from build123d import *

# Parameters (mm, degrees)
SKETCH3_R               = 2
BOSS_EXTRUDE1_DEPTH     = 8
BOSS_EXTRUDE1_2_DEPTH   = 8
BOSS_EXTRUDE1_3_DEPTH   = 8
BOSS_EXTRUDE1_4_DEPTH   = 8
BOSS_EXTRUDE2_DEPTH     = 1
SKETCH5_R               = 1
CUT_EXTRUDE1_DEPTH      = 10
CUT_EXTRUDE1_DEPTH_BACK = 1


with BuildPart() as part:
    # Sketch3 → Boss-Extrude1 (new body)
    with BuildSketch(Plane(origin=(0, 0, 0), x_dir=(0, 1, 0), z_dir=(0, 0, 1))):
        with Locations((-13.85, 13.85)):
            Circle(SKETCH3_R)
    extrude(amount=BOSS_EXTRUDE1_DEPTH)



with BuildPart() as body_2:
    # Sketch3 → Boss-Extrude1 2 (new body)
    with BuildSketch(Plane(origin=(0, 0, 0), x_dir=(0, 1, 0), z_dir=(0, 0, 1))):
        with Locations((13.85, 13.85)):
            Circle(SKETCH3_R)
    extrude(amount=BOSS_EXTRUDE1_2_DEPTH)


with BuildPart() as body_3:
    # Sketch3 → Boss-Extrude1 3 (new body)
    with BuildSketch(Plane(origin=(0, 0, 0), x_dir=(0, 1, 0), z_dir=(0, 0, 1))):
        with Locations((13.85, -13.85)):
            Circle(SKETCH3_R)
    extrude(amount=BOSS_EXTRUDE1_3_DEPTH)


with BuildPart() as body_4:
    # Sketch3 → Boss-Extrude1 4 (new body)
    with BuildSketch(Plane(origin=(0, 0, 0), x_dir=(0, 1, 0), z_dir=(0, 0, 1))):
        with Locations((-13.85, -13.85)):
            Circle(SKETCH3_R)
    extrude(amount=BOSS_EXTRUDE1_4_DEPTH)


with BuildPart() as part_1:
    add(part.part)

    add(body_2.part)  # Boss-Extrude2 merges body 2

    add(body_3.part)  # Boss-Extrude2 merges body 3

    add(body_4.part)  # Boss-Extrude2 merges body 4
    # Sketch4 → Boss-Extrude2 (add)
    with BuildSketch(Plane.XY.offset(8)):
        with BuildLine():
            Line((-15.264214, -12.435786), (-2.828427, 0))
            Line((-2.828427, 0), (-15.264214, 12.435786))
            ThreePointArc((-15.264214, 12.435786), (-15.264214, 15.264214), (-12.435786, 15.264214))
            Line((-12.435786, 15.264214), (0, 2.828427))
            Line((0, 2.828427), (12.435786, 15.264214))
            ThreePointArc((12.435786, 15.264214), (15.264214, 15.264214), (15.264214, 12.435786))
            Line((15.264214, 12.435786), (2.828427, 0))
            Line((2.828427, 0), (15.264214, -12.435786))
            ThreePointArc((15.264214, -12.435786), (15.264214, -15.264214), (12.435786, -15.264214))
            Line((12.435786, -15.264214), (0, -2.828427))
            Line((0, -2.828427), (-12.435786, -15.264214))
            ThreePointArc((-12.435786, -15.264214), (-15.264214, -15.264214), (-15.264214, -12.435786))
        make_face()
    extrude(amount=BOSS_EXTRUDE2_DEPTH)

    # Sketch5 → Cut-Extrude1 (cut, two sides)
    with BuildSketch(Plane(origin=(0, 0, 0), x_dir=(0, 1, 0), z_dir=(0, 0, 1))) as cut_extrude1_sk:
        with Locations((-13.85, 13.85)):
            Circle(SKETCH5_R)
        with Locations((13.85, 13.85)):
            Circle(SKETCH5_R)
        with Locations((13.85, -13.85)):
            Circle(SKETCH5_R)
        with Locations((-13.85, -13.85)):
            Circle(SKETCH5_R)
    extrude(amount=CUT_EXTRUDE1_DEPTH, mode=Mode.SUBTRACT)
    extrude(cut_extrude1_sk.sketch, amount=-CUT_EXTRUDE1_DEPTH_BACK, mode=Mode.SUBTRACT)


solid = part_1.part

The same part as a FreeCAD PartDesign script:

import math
import FreeCAD as App
import Part
import Sketcher

V = App.Vector
Q = App.Units.Quantity

doc = App.newDocument("Part")
body = doc.addObject("PartDesign::Body", "Body")

sketch1 = body.newObject("Sketcher::SketchObject", "Sketch")
sketch1.AttachmentSupport = (doc.getObject("XY_Plane"), [""])
sketch1.MapMode = "FlatFace"
sketch1.addGeometry(Part.Circle(V(-13.8, -13.8, 0), V(0, 0, 1), 2), False)
sketch1.addConstraint(Sketcher.Constraint("Diameter", 0, Q("4 mm")))
sketch1.addConstraint(Sketcher.Constraint("DistanceX", 0, 3, -1, 1, Q("13.85 mm")))
sketch1.addConstraint(Sketcher.Constraint("DistanceY", 0, 3, -1, 1, Q("13.85 mm")))
pad1 = body.newObject("PartDesign::Pad", "Pad")
pad1.Profile = sketch1
pad1.Length = 8
body2 = doc.addObject("PartDesign::Body", "Body001")

sketch2 = body2.newObject("Sketcher::SketchObject", "Sketch001")
sketch2.AttachmentSupport = (doc.getObject("XY_Plane001"), [""])
sketch2.MapMode = "FlatFace"
sketch2.addGeometry(Part.Circle(V(-13.8, 13.8, 0), V(0, 0, 1), 2), False)
sketch2.addConstraint(Sketcher.Constraint("Diameter", 0, Q("4 mm")))
sketch2.addConstraint(Sketcher.Constraint("DistanceX", 0, 3, -1, 1, Q("13.85 mm")))
sketch2.addConstraint(Sketcher.Constraint("DistanceY", -1, 1, 0, 3, Q("13.85 mm")))
pad2 = body2.newObject("PartDesign::Pad", "Pad001")
pad2.Profile = sketch2
pad2.Length = 8
body3 = doc.addObject("PartDesign::Body", "Body002")

sketch3 = body3.newObject("Sketcher::SketchObject", "Sketch002")
sketch3.AttachmentSupport = (doc.getObject("XY_Plane002"), [""])
sketch3.MapMode = "FlatFace"
sketch3.addGeometry(Part.Circle(V(13.8, 13.8, 0), V(0, 0, 1), 2), False)
sketch3.addConstraint(Sketcher.Constraint("Diameter", 0, Q("4 mm")))
sketch3.addConstraint(Sketcher.Constraint("DistanceX", -1, 1, 0, 3, Q("13.85 mm")))
sketch3.addConstraint(Sketcher.Constraint("DistanceY", -1, 1, 0, 3, Q("13.85 mm")))
pad3 = body3.newObject("PartDesign::Pad", "Pad002")
pad3.Profile = sketch3
pad3.Length = 8
body4 = doc.addObject("PartDesign::Body", "Body003")

sketch4 = body4.newObject("Sketcher::SketchObject", "Sketch003")
sketch4.AttachmentSupport = (doc.getObject("XY_Plane003"), [""])
sketch4.MapMode = "FlatFace"
sketch4.addGeometry(Part.Circle(V(13.8, -13.8, 0), V(0, 0, 1), 2), False)
sketch4.addConstraint(Sketcher.Constraint("Diameter", 0, Q("4 mm")))
sketch4.addConstraint(Sketcher.Constraint("DistanceX", -1, 1, 0, 3, Q("13.85 mm")))
sketch4.addConstraint(Sketcher.Constraint("DistanceY", 0, 3, -1, 1, Q("13.85 mm")))
pad4 = body4.newObject("PartDesign::Pad", "Pad003")
pad4.Profile = sketch4
pad4.Length = 8
body.AllowCompound = True
doc.recompute()

boolean = body.newObject("PartDesign::Boolean", "Boolean")
boolean.Type = "Fuse"
boolean.addObjects([body2])
doc.recompute()

boolean2 = body.newObject("PartDesign::Boolean", "Boolean001")
boolean2.Type = "Fuse"
boolean2.addObjects([body3])
doc.recompute()

boolean3 = body.newObject("PartDesign::Boolean", "Boolean002")
boolean3.Type = "Fuse"
boolean3.addObjects([body4])

sketch5 = body.newObject("Sketcher::SketchObject", "Sketch004")
sketch5.AttachmentSupport = (doc.getObject("XY_Plane"), [""])
sketch5.MapMode = "FlatFace"
sketch5.AttachmentOffset = App.Placement(V(0, 0, 8), App.Rotation())
sketch5.addGeometry(Part.LineSegment(V(-2.8, 0, 0), V(-15.3, -12.4, 0)), False)
sketch5.addGeometry(Part.ArcOfCircle(Part.Circle(V(-13.8, -13.8, 0), V(0, 0, 1), 2), math.radians(135), math.radians(315)), False)
sketch5.addGeometry(Part.LineSegment(V(-12.4, -15.3, 0), V(0, -2.8, 0)), False)
sketch5.addGeometry(Part.LineSegment(V(0, -2.8, 0), V(12.4, -15.3, 0)), False)
sketch5.addGeometry(Part.ArcOfCircle(Part.Circle(V(13.8, -13.8, 0), V(0, 0, 1), 2), math.radians(-135), math.radians(45)), False)
sketch5.addGeometry(Part.LineSegment(V(15.3, -12.4, 0), V(2.8, 0, 0)), False)
sketch5.addGeometry(Part.LineSegment(V(2.8, 0, 0), V(15.3, 12.4, 0)), False)
sketch5.addGeometry(Part.ArcOfCircle(Part.Circle(V(13.8, 13.8, 0), V(0, 0, 1), 2), math.radians(-45), math.radians(135)), False)
sketch5.addGeometry(Part.LineSegment(V(12.4, 15.3, 0), V(0, 2.8, 0)), False)
sketch5.addGeometry(Part.LineSegment(V(0, 2.8, 0), V(-12.4, 15.3, 0)), False)
sketch5.addGeometry(Part.ArcOfCircle(Part.Circle(V(-13.8, 13.8, 0), V(0, 0, 1), 2), math.radians(45), math.radians(225)), False)
sketch5.addGeometry(Part.LineSegment(V(-15.3, 12.4, 0), V(-2.8, 0, 0)), False)
sketch5.addConstraint(Sketcher.Constraint("Tangent", 0, 2, 1, 1))
sketch5.addConstraint(Sketcher.Constraint("Tangent", 1, 2, 2, 1))
sketch5.addConstraint(Sketcher.Constraint("Coincident", 2, 2, 3, 1))
sketch5.addConstraint(Sketcher.Constraint("Tangent", 3, 2, 4, 1))
sketch5.addConstraint(Sketcher.Constraint("Tangent", 4, 2, 5, 1))
sketch5.addConstraint(Sketcher.Constraint("Coincident", 5, 2, 6, 1))
sketch5.addConstraint(Sketcher.Constraint("Tangent", 6, 2, 7, 1))
sketch5.addConstraint(Sketcher.Constraint("Tangent", 7, 2, 8, 1))
sketch5.addConstraint(Sketcher.Constraint("Coincident", 8, 2, 9, 1))
sketch5.addConstraint(Sketcher.Constraint("Tangent", 9, 2, 10, 1))
sketch5.addConstraint(Sketcher.Constraint("Tangent", 10, 2, 11, 1))
sketch5.addConstraint(Sketcher.Constraint("Coincident", 11, 2, 0, 1))
sketch5.addConstraint(Sketcher.Constraint("Equal", 1, 4))
sketch5.addConstraint(Sketcher.Constraint("Equal", 4, 7))
sketch5.addConstraint(Sketcher.Constraint("Equal", 7, 10))
sketch5.addConstraint(Sketcher.Constraint("Symmetric", 1, 3, 7, 3, -1, 1))
sketch5.addConstraint(Sketcher.Constraint("Symmetric", 4, 3, 10, 3, -1, 1))
sketch5.addConstraint(Sketcher.Constraint("Symmetric", 2, 2, 8, 2, -1, 1))
sketch5.addConstraint(Sketcher.Constraint("Symmetric", 5, 2, 11, 2, -1, 1))
sketch5.addConstraint(Sketcher.Constraint("Symmetric", 1, 3, 4, 3, -2))
sketch5.addConstraint(Sketcher.Constraint("PointOnObject", 2, 2, -2))
sketch5.addConstraint(Sketcher.Constraint("PointOnObject", 5, 2, -1))
sketch5.addConstraint(Sketcher.Constraint("Parallel", 0, 2))
sketch5.addConstraint(Sketcher.Constraint("Perpendicular", 2, 3))
sketch5.addConstraint(Sketcher.Constraint("Equal", 0, 2))
sketch5.addConstraint(Sketcher.Constraint("Radius", 1, Q("2.000001 mm")))
sketch5.addConstraint(Sketcher.Constraint("DistanceX", 1, 3, 4, 3, Q("27.7 mm")))
pad5 = body.newObject("PartDesign::Pad", "Pad004")
pad5.Profile = sketch5
pad5.Length = 1

sketch6 = body.newObject("Sketcher::SketchObject", "Sketch005")
sketch6.AttachmentSupport = (doc.getObject("XY_Plane"), [""])
sketch6.MapMode = "FlatFace"
sketch6.addGeometry(Part.Circle(V(-13.8, -13.8, 0), V(0, 0, 1), 1), False)
sketch6.addGeometry(Part.Circle(V(-13.8, 13.8, 0), V(0, 0, 1), 1), False)
sketch6.addGeometry(Part.Circle(V(13.8, 13.8, 0), V(0, 0, 1), 1), False)
sketch6.addGeometry(Part.Circle(V(13.8, -13.8, 0), V(0, 0, 1), 1), False)
sketch6.addConstraint(Sketcher.Constraint("Equal", 0, 1))
sketch6.addConstraint(Sketcher.Constraint("Equal", 1, 2))
sketch6.addConstraint(Sketcher.Constraint("Equal", 2, 3))
sketch6.addConstraint(Sketcher.Constraint("Symmetric", 0, 3, 2, 3, -1, 1))
sketch6.addConstraint(Sketcher.Constraint("Symmetric", 1, 3, 3, 3, -1, 1))
sketch6.addConstraint(Sketcher.Constraint("Symmetric", 1, 3, 2, 3, -2))
sketch6.addConstraint(Sketcher.Constraint("Diameter", 0, Q("2 mm")))
sketch6.addConstraint(Sketcher.Constraint("DistanceY", 0, 3, 1, 3, Q("27.7 mm")))
sketch6.addConstraint(Sketcher.Constraint("DistanceX", 1, 3, 2, 3, Q("27.7 mm")))
pocket1 = body.newObject("PartDesign::Pocket", "Pocket")
pocket1.Profile = sketch6
pocket1.Type = "ThroughAll"
pocket1.Midplane = True

doc.recompute()
